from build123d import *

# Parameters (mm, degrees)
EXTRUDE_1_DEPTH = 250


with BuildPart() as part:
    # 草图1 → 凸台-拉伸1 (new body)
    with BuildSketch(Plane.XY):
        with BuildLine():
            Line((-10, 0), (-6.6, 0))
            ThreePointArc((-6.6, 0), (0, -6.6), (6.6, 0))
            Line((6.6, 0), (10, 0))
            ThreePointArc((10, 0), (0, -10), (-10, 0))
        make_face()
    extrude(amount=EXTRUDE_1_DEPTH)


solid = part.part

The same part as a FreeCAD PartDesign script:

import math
import FreeCAD as App
import Part
import Sketcher

V = App.Vector
Q = App.Units.Quantity

doc = App.newDocument("Part")
body = doc.addObject("PartDesign::Body", "Body")

# Sketch on XY plane
sketch1 = body.newObject("Sketcher::SketchObject", "Sketch")
sketch1.AttachmentSupport = (doc.getObject("XY_Plane"), [""])
sketch1.MapMode = "FlatFace"
sketch1.addGeometry([
    Part.LineSegment(V(-6.6, 0, 0), V(-10, 0, 0)),
    Part.ArcOfCircle(Part.Circle(V(0, 0, 0), V(0, 0, 1), 10), math.radians(180), math.radians(360)),
    Part.LineSegment(V(10, 0, 0), V(6.6, 0, 0)),
    Part.ArcOfCircle(Part.Circle(V(0, 0, 0), V(0, 0, 1), 6.6), math.radians(180), math.radians(360)),
], False)
sketch1.addConstraint([
    Sketcher.Constraint("Coincident", 0, 2, 1, 1),
    Sketcher.Constraint("Coincident", 1, 2, 2, 1),
    Sketcher.Constraint("Coincident", 2, 2, 3, 2),
    Sketcher.Constraint("Coincident", 3, 1, 0, 1),
    Sketcher.Constraint("Horizontal", 0),
    Sketcher.Constraint("Horizontal", 2),
    Sketcher.Constraint("Coincident", 1, 3, -1, 1),
    Sketcher.Constraint("Coincident", 3, 3, -1, 1),
    Sketcher.Constraint("PointOnObject", 0, 2, -1),
    Sketcher.Constraint("PointOnObject", 1, 2, -1),
    Sketcher.Constraint("Radius", 1, Q("10 mm")),
    Sketcher.Constraint("Radius", 3, Q("6.6 mm")),
])
pad1 = body.newObject("PartDesign::Pad", "Pad")
pad1.Profile = sketch1
pad1.Length = 250

doc.recompute()
